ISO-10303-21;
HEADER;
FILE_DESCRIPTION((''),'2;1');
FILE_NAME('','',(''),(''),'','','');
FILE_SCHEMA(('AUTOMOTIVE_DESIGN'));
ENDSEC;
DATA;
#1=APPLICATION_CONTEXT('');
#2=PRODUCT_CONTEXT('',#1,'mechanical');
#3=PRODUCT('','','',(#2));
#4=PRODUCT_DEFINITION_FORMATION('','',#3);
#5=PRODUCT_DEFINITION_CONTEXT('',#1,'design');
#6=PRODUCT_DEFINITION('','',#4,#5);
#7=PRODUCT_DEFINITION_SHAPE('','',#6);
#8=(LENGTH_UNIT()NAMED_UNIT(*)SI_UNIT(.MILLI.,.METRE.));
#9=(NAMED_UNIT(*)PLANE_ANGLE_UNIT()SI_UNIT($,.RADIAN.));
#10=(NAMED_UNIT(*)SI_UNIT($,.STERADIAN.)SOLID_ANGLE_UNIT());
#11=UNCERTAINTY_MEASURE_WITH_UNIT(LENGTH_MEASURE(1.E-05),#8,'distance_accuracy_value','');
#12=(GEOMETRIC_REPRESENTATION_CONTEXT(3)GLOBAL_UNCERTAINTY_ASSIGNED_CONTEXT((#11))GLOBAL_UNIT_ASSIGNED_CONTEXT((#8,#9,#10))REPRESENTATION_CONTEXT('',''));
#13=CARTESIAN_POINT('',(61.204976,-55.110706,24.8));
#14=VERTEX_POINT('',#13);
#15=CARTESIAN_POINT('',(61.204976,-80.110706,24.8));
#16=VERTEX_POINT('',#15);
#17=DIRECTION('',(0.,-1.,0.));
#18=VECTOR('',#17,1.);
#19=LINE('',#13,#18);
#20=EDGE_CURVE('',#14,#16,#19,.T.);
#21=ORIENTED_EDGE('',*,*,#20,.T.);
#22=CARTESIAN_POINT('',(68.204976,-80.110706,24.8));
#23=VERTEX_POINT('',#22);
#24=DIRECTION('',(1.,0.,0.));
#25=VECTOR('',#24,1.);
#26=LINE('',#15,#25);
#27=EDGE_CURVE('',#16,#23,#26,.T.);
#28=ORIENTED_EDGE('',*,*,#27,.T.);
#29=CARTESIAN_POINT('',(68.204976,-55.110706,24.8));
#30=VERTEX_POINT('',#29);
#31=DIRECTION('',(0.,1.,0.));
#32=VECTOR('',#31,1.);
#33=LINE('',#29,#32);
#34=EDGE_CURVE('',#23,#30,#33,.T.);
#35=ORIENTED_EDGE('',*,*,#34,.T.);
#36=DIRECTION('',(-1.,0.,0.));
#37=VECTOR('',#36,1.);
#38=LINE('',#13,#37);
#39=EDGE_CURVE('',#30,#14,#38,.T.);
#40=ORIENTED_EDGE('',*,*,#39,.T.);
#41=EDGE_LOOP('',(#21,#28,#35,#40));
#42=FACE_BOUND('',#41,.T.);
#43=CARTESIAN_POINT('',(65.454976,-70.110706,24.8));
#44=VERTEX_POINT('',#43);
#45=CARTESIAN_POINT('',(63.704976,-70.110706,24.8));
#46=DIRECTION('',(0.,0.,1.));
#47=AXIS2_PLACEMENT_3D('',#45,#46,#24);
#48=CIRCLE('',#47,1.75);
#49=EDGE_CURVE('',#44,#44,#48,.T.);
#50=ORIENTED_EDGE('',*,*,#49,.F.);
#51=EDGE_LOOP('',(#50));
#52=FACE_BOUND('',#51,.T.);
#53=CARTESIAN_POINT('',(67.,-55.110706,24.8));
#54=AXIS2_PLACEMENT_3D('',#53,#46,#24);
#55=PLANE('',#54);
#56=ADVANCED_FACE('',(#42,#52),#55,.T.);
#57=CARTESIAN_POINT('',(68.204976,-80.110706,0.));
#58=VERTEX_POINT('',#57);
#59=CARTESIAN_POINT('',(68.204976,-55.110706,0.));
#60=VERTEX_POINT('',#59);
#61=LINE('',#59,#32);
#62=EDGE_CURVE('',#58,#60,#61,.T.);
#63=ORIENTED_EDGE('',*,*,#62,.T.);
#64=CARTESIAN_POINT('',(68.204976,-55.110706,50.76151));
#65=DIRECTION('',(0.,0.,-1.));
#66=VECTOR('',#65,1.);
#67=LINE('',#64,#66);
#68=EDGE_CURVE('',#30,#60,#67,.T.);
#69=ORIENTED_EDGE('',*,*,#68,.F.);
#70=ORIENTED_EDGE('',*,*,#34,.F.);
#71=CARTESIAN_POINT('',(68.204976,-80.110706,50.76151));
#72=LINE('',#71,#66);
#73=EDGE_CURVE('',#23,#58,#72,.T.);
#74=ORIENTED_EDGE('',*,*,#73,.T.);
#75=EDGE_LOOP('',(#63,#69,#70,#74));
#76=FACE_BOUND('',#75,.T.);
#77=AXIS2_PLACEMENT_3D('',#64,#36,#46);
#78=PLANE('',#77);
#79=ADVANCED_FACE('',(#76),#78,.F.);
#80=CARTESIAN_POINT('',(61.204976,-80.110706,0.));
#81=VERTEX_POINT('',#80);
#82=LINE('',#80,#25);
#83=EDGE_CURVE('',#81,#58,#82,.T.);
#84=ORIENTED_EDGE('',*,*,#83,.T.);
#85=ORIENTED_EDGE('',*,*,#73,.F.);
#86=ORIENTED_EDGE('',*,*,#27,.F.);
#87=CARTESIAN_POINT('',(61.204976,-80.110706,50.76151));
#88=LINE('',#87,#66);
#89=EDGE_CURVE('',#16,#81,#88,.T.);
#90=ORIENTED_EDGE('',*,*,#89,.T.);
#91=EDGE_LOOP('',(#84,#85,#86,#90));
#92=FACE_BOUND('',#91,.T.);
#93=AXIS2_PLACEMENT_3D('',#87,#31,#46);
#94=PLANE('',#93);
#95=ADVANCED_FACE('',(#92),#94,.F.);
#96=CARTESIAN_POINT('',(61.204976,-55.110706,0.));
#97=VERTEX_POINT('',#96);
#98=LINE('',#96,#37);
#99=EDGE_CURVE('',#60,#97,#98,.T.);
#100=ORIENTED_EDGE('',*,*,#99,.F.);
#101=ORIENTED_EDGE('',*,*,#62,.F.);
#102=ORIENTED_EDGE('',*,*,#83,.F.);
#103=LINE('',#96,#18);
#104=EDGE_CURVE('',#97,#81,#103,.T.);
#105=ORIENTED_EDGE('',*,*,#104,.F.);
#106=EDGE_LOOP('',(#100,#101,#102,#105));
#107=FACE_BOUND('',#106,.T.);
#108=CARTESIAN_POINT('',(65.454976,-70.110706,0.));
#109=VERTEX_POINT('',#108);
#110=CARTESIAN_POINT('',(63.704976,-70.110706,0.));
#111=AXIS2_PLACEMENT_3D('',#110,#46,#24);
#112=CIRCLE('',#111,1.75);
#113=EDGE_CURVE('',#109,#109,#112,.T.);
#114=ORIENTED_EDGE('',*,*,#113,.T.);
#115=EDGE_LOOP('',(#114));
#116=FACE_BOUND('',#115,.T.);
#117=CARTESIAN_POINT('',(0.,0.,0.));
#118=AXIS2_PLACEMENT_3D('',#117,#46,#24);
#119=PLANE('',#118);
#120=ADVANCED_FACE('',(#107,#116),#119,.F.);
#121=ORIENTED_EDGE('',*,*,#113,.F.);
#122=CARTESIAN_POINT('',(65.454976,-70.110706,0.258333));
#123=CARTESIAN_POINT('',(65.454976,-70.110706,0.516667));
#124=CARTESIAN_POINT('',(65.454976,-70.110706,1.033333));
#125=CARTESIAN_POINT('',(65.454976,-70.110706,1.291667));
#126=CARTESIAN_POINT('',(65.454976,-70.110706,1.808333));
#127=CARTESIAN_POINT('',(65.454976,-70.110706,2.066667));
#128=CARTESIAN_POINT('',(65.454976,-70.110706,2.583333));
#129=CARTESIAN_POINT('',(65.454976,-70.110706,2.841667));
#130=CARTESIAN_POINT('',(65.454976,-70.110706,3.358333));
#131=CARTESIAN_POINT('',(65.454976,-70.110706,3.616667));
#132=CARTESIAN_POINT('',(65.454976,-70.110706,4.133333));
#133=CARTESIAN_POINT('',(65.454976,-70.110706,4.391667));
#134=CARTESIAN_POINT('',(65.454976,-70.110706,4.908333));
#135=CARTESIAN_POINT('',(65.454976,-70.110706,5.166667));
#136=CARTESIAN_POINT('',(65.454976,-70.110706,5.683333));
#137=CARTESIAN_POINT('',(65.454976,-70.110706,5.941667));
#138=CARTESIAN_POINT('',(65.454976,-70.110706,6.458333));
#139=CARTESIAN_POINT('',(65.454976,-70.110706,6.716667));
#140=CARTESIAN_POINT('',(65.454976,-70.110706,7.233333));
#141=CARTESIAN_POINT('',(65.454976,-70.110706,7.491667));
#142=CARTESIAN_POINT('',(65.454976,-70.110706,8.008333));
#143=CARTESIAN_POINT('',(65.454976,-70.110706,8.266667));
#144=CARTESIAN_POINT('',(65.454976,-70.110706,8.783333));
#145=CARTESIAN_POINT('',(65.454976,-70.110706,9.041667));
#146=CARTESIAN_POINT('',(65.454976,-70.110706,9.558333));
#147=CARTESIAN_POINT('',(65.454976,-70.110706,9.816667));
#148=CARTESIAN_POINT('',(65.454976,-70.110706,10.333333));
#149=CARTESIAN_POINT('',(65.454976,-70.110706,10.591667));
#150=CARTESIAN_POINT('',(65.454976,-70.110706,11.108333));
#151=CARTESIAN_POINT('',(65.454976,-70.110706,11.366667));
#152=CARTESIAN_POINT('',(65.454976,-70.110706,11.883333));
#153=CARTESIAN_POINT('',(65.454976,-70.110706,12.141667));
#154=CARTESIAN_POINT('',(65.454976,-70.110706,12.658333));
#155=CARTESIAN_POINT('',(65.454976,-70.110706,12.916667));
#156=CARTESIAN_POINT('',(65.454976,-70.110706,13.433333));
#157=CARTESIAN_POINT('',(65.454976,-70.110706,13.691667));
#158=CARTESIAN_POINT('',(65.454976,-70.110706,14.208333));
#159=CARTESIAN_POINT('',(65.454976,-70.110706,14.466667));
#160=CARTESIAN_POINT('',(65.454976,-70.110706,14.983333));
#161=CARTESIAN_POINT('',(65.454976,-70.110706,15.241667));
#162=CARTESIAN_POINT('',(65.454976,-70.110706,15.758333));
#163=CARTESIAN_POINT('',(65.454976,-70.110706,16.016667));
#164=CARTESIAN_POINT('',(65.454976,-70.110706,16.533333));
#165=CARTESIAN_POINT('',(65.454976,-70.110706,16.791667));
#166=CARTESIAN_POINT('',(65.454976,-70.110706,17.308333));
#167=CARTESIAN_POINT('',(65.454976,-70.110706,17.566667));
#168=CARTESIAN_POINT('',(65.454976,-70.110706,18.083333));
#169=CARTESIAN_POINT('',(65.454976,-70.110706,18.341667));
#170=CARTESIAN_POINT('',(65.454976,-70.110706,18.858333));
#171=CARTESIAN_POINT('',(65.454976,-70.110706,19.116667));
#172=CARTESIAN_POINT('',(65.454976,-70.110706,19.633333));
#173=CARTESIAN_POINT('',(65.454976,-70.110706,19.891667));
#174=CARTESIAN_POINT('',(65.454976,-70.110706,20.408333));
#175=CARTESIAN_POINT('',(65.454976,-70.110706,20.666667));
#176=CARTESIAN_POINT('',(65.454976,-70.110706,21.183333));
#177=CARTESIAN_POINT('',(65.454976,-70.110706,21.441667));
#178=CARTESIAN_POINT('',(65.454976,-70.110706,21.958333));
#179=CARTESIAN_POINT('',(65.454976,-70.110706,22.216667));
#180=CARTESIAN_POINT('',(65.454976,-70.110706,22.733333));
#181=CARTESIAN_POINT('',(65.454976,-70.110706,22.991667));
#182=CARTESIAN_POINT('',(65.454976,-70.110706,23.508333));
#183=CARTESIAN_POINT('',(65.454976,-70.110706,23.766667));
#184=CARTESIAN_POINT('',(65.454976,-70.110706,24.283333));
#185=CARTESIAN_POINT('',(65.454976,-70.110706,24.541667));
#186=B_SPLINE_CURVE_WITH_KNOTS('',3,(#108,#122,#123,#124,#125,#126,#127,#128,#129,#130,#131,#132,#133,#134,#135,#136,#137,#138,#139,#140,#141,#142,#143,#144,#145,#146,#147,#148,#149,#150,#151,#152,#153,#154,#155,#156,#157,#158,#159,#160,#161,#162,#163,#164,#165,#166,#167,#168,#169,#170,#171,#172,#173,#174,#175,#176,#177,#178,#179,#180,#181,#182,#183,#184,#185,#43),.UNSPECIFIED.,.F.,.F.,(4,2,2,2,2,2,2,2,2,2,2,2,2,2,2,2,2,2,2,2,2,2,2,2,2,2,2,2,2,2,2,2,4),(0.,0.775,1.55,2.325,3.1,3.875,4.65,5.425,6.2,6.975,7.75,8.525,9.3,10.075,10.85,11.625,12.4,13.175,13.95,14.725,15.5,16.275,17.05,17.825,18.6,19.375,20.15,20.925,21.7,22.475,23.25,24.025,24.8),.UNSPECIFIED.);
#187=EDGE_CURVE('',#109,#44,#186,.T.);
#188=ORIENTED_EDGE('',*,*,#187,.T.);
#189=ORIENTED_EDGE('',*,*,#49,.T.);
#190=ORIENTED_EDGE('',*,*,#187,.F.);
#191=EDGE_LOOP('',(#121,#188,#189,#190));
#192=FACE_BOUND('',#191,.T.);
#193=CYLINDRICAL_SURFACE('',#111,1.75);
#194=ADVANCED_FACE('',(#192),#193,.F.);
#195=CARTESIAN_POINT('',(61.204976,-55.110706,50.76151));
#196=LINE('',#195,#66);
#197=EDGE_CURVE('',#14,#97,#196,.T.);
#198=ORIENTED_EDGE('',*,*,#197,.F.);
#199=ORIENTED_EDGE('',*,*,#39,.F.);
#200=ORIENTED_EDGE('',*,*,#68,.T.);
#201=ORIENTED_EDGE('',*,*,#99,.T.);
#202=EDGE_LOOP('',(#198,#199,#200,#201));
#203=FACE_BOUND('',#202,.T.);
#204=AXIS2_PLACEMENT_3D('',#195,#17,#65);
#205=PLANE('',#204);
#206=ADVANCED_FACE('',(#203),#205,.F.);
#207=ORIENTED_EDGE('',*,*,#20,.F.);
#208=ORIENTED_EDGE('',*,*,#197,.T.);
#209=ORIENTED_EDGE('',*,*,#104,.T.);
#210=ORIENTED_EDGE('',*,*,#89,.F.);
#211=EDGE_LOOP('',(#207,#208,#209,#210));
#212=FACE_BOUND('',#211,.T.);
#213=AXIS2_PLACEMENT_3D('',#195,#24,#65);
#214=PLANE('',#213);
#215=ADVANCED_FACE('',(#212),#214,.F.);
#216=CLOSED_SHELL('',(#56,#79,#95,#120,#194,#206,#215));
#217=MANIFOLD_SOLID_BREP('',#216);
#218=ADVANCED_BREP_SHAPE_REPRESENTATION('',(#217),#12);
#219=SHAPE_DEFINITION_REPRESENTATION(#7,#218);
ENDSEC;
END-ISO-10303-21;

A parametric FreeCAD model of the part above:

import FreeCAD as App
import Part
import Sketcher

V = App.Vector
Q = App.Units.Quantity


def add_polygon(sketch, points):
    """Adds a closed chain of lines whose ends are joined by coincident constraints."""
    first, n = sketch.GeometryCount, len(points)
    for a, b in zip(points, points[1:] + points[:1]):
        sketch.addGeometry(Part.LineSegment(App.Vector(*a, 0), App.Vector(*b, 0)), False)
    for i in range(n):
        sketch.addConstraint(Sketcher.Constraint("Coincident", first + i, 2, first + (i + 1) % n, 1))

doc = App.newDocument("Part")
body = doc.addObject("PartDesign::Body", "Body")

# Sketch on XY plane
sketch1 = body.newObject("Sketcher::SketchObject", "Sketch")
sketch1.AttachmentSupport = (doc.getObject("XY_Plane"), [""])
sketch1.MapMode = "FlatFace"
add_polygon(sketch1, [(61, -55), (61, -80), (68, -80), (68, -55)])  # lines 0-3
sketch1.addConstraint(Sketcher.Constraint("Vertical", 0))
sketch1.addConstraint(Sketcher.Constraint("Horizontal", 1))
sketch1.addConstraint(Sketcher.Constraint("Vertical", 2))
sketch1.addConstraint(Sketcher.Constraint("Horizontal", 3))
sketch1.addConstraint(Sketcher.Constraint("DistanceX", 1, 1, 1, 2, Q("7 mm")))
sketch1.addConstraint(Sketcher.Constraint("DistanceY", 0, 2, 0, 1, Q("25 mm")))
sketch1.addConstraint(Sketcher.Constraint("DistanceX", -1, 1, 0, 2, Q("61.204976 mm")))
sketch1.addConstraint(Sketcher.Constraint("DistanceY", 0, 2, -1, 1, Q("80.110706 mm")))
pad1 = body.newObject("PartDesign::Pad", "Pad")
pad1.Profile = sketch1
pad1.Length = 24.8

# Sketch on XY plane
sketch2 = body.newObject("Sketcher::SketchObject", "Sketch001")
sketch2.AttachmentSupport = (doc.getObject("XY_Plane"), [""])
sketch2.MapMode = "FlatFace"
sketch2.AttachmentOffset = App.Placement(V(0, 0, 24.8), App.Rotation())
sketch2.addGeometry(Part.Circle(V(63.7, -70.1, 0), V(0, 0, 1), 1.8), False)
sketch2.addGeometry(Part.Circle(V(63.7, -90.1, 0), V(0, 0, 1), 1.8), False)
sketch2.addConstraint(Sketcher.Constraint("Equal", 0, 1))
sketch2.addConstraint(Sketcher.Constraint("Vertical", 0, 3, 1, 3))
sketch2.addConstraint(Sketcher.Constraint("Diameter", 0, Q("3.5 mm")))
sketch2.addConstraint(Sketcher.Constraint("DistanceY", 1, 3, 0, 3, Q("20 mm")))
sketch2.addConstraint(Sketcher.Constraint("DistanceX", -1, 1, 0, 3, Q("63.704976 mm")))
sketch2.addConstraint(Sketcher.Constraint("DistanceY", 0, 3, -1, 1, Q("70.110706 mm")))
pocket1 = body.newObject("PartDesign::Pocket", "Pocket")
pocket1.Profile = sketch2
pocket1.Type = "ThroughAll"

doc.recompute()
